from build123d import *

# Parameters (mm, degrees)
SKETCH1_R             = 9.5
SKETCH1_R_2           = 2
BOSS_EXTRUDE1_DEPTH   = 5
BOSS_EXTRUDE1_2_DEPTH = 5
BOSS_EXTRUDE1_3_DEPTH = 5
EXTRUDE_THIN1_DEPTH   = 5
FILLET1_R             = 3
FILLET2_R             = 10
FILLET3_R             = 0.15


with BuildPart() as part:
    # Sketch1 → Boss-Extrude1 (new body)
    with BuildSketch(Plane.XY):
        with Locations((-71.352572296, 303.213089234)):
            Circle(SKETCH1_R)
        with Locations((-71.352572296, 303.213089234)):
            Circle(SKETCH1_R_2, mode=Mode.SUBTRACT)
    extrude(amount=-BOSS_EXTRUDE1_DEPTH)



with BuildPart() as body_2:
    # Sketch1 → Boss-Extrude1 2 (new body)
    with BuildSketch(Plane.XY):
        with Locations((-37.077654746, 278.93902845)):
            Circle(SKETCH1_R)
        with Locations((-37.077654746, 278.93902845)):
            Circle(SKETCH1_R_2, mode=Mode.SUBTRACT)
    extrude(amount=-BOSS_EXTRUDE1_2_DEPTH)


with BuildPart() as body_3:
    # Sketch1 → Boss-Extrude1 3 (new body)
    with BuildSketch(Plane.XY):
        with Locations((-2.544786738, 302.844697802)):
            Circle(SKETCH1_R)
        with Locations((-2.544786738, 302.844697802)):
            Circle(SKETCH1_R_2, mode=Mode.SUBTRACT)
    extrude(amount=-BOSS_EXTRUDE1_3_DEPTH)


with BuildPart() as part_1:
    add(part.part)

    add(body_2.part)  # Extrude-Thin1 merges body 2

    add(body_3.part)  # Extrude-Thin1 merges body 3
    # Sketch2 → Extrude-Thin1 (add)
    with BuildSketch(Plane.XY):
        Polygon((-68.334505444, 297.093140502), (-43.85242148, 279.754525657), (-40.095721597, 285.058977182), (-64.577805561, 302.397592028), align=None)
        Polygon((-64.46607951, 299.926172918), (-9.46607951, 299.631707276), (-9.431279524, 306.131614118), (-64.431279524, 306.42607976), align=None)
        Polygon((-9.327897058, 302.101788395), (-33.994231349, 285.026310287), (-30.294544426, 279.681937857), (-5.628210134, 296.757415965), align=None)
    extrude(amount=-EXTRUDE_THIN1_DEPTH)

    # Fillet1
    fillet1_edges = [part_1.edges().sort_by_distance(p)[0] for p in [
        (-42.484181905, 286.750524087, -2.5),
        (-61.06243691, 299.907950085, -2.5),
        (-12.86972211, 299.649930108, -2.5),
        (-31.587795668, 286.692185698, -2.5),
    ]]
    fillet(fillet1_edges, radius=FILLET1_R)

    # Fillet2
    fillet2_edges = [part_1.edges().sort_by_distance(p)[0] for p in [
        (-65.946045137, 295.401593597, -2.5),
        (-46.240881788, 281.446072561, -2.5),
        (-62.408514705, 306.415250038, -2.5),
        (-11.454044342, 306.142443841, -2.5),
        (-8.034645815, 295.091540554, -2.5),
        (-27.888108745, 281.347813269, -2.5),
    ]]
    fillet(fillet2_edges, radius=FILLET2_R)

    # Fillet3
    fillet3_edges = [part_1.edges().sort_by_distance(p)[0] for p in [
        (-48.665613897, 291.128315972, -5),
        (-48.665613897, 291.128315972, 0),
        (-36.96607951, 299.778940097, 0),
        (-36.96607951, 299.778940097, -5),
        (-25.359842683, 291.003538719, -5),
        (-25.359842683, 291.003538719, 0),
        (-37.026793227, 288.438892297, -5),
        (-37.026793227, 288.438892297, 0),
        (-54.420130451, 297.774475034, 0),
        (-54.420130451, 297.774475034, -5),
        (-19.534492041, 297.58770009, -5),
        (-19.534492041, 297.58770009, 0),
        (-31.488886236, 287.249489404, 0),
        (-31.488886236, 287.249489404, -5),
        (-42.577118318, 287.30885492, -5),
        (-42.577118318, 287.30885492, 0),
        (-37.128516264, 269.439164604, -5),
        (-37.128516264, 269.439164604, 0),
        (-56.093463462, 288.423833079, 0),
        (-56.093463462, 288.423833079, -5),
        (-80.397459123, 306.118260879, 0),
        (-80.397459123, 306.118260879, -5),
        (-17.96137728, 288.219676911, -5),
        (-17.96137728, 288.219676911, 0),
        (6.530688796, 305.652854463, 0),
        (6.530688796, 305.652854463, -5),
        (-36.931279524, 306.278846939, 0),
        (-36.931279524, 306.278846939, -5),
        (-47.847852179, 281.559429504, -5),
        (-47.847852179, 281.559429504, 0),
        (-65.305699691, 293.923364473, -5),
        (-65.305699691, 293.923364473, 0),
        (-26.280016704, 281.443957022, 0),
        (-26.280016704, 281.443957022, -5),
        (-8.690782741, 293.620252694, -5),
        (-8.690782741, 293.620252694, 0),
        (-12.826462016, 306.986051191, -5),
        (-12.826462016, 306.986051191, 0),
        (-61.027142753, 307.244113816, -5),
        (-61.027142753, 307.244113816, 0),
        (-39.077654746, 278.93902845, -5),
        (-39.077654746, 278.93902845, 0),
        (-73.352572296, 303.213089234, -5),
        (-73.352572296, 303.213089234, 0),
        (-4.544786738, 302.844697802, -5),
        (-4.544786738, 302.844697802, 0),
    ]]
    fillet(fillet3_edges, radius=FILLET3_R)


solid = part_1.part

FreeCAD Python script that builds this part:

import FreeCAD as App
import Part
import Sketcher

V = App.Vector


def edges_at(feature, points):
    """Names of the edges that pass closest to the given points."""
    edges = feature.Shape.Edges
    near = lambda p: min(range(len(edges)), key=lambda i: edges[i].distToShape(Part.Vertex(*p))[0])
    return sorted({f"Edge{near(p) + 1}" for p in points})


def add_polygon(sketch, points):
    """Adds a closed chain of lines whose ends are joined by coincident constraints."""
    first, n = sketch.GeometryCount, len(points)
    for a, b in zip(points, points[1:] + points[:1]):
        sketch.addGeometry(Part.LineSegment(App.Vector(*a, 0), App.Vector(*b, 0)), False)
    for i in range(n):
        sketch.addConstraint(Sketcher.Constraint("Coincident", first + i, 2, first + (i + 1) % n, 1))

doc = App.newDocument("Part")
body = doc.addObject("PartDesign::Body", "Body")

# Sketch on XY plane
sketch1 = body.newObject("Sketcher::SketchObject", "Sketch")
sketch1.AttachmentSupport = (doc.getObject("XY_Plane"), [""])
sketch1.MapMode = "FlatFace"
sketch1.addGeometry([
    Part.Circle(V(-71.4, 303.2, 0), V(0, 0, 1), 9.5),
    Part.Circle(V(-71.4, 303.2, 0), V(0, 0, 1), 2),
], False)
sketch1.addConstraint([
    Sketcher.Constraint("Coincident", 1, 3, 0, 3),
    Sketcher.Constraint("Diameter", 0, 19.0),
    Sketcher.Constraint("Diameter", 1, 4.0),
    Sketcher.Constraint("DistanceY", -1, 1, 0, 3, 303.213089),
    Sketcher.Constraint("DistanceX", 0, 3, -1, 1, 71.352572),
])
pad1 = body.newObject("PartDesign::Pad", "Pad")
pad1.Profile = sketch1
pad1.Length = 5
pad1.Reversed = True
body2 = doc.addObject("PartDesign::Body", "Body001")

# Sketch on XY plane
sketch2 = body2.newObject("Sketcher::SketchObject", "Sketch001")
sketch2.AttachmentSupport = (doc.getObject("XY_Plane001"), [""])
sketch2.MapMode = "FlatFace"
sketch2.addGeometry([
    Part.Circle(V(-37.1, 278.9, 0), V(0, 0, 1), 9.5),
    Part.Circle(V(-37.1, 278.9, 0), V(0, 0, 1), 2),
], False)
sketch2.addConstraint([
    Sketcher.Constraint("Coincident", 1, 3, 0, 3),
    Sketcher.Constraint("Diameter", 0, 19.0),
    Sketcher.Constraint("Diameter", 1, 4.0),
    Sketcher.Constraint("DistanceY", -1, 1, 0, 3, 278.939028),
    Sketcher.Constraint("DistanceX", 0, 3, -1, 1, 37.077655),
])
pad2 = body2.newObject("PartDesign::Pad", "Pad001")
pad2.Profile = sketch2
pad2.Length = 5
pad2.Reversed = True
body3 = doc.addObject("PartDesign::Body", "Body002")

# Sketch on XY plane
sketch3 = body3.newObject("Sketcher::SketchObject", "Sketch002")
sketch3.AttachmentSupport = (doc.getObject("XY_Plane002"), [""])
sketch3.MapMode = "FlatFace"
sketch3.addGeometry([
    Part.Circle(V(-2.5, 302.8, 0), V(0, 0, 1), 9.5),
    Part.Circle(V(-2.5, 302.8, 0), V(0, 0, 1), 2),
], False)
sketch3.addConstraint([
    Sketcher.Constraint("Coincident", 1, 3, 0, 3),
    Sketcher.Constraint("Diameter", 0, 19.0),
    Sketcher.Constraint("Diameter", 1, 4.0),
    Sketcher.Constraint("DistanceX", 0, 3, -1, 1, 2.544787),
    Sketcher.Constraint("DistanceY", -1, 1, 0, 3, 302.844698),
])
pad3 = body3.newObject("PartDesign::Pad", "Pad002")
pad3.Profile = sketch3
pad3.Length = 5
pad3.Reversed = True
body.AllowCompound = True
doc.recompute()

boolean = body.newObject("PartDesign::Boolean", "Boolean")
boolean.Type = "Fuse"
boolean.addObjects([body2])
doc.recompute()

boolean2 = body.newObject("PartDesign::Boolean", "Boolean001")
boolean2.Type = "Fuse"
boolean2.addObjects([body3])

# Sketch on XY plane
sketch4 = body.newObject("Sketcher::SketchObject", "Sketch003")
sketch4.AttachmentSupport = (doc.getObject("XY_Plane"), [""])
sketch4.MapMode = "FlatFace"
add_polygon(sketch4, [(-64.45, 302.31), (-64.58, 302.4), (-68.33, 297.09), (-43.85, 279.75), (-40.1, 285.06), (-61.06, 299.91), (-12.87, 299.65), (-33.99, 285.03), (-30.29, 279.68), (-5.63, 296.76), (-9.33, 302.1), (-9.45, 302.01), (-9.43, 306.13), (-64.43, 306.43)])  # lines 0-13
sketch4.addConstraint([
    Sketcher.Constraint("Perpendicular", 0, 1),
    Sketcher.Constraint("Perpendicular", 1, 2),
    Sketcher.Constraint("Perpendicular", 2, 3),
    Sketcher.Constraint("Perpendicular", 3, 4),
    Sketcher.Constraint("Perpendicular", 6, 7),
    Sketcher.Constraint("Perpendicular", 7, 8),
    Sketcher.Constraint("Perpendicular", 8, 9),
    Sketcher.Constraint("Perpendicular", 9, 10),
    Sketcher.Constraint("Perpendicular", 5, 11),
    Sketcher.Constraint("Perpendicular", 11, 12),
    Sketcher.Constraint("Perpendicular", 12, 13),
    Sketcher.Constraint("Equal", 1, 3),
    Sketcher.Constraint("Equal", 4, 6),
    Sketcher.Constraint("Equal", 3, 7),
    Sketcher.Constraint("Equal", 2, 8),
    Sketcher.Constraint("Equal", 7, 9),
    Sketcher.Constraint("Equal", 0, 10),
    Sketcher.Constraint("Equal", 11, 13),
    Sketcher.Constraint("Distance", 2, 30.0),
    Sketcher.Constraint("Distance", 1, 6.5),
    Sketcher.Constraint("DistanceX", 3, 2, 5, 2, 27.225999),
    Sketcher.Constraint("DistanceX", 1, 2, 0, 2, 3.7567),
    Sketcher.Constraint("DistanceY", 8, 2, 11, 2, 9.374198),
    Sketcher.Constraint("DistanceX", 13, 2, 3, 2, 24.357598),
    Sketcher.Constraint("Distance", 11, 4.11671),
    Sketcher.Constraint("Distance", 12, 55.000788),
    Sketcher.Constraint("DistanceY", -1, 1, 1, 2, 297.093141),
    Sketcher.Constraint("DistanceX", 2, 2, -1, 1, 43.852421),
])
pad4 = body.newObject("PartDesign::Pad", "Pad003")
pad4.Profile = sketch4
pad4.Length = 5
pad4.Reversed = True
doc.recompute()

fillet = body.newObject("PartDesign::Fillet", "Fillet")
fillet.Base = (pad4, edges_at(pad4, [
    (-42.484, 286.751, -2.5),
    (-61.062, 299.908, -2.5),
    (-12.87, 299.65, -2.5),
    (-31.588, 286.692, -2.5),
]))
fillet.Radius = 3
doc.recompute()

fillet2 = body.newObject("PartDesign::Fillet", "Fillet001")
fillet2.Base = (fillet, edges_at(fillet, [
    (-65.946, 295.402, -2.5),
    (-46.241, 281.446, -2.5),
    (-62.409, 306.415, -2.5),
    (-11.454, 306.142, -2.5),
    (-8.035, 295.092, -2.5),
    (-27.888, 281.348, -2.5),
]))
fillet2.Radius = 10
doc.recompute()

fillet3 = body.newObject("PartDesign::Fillet", "Fillet002")
fillet3.Base = (fillet2, edges_at(fillet2, [
    (-48.666, 291.128, -5),
    (-48.666, 291.128, 0),
    (-36.966, 299.779, 0),
    (-36.966, 299.779, -5),
    (-25.36, 291.004, -5),
    (-25.36, 291.004, 0),
    (-37.027, 288.439, -5),
    (-37.027, 288.439, 0),
    (-54.42, 297.774, 0),
    (-54.42, 297.774, -5),
    (-19.534, 297.588, -5),
    (-19.534, 297.588, 0),
    (-31.489, 287.249, 0),
    (-31.489, 287.249, -5),
    (-42.577, 287.309, -5),
    (-42.577, 287.309, 0),
    (-37.129, 269.439, -5),
    (-37.129, 269.439, 0),
    (-56.093, 288.424, 0),
    (-56.093, 288.424, -5),
    (-80.397, 306.118, 0),
    (-80.397, 306.118, -5),
    (-17.961, 288.22, -5),
    (-17.961, 288.22, 0),
    (6.531, 305.653, 0),
    (6.531, 305.653, -5),
    (-36.931, 306.279, 0),
    (-36.931, 306.279, -5),
    (-47.848, 281.559, -5),
    (-47.848, 281.559, 0),
    (-65.306, 293.923, -5),
    (-65.306, 293.923, 0),
    (-26.28, 281.444, 0),
    (-26.28, 281.444, -5),
    (-8.691, 293.62, -5),
    (-8.691, 293.62, 0),
    (-12.826, 306.986, -5),
    (-12.826, 306.986, 0),
    (-61.027, 307.244, -5),
    (-61.027, 307.244, 0),
    (-39.078, 278.939, -5),
    (-39.078, 278.939, 0),
    (-73.353, 303.213, -5),
    (-73.353, 303.213, 0),
    (-4.545, 302.845, -5),
    (-4.545, 302.845, 0),
]))
fillet3.Radius = 0.15

doc.recompute()
